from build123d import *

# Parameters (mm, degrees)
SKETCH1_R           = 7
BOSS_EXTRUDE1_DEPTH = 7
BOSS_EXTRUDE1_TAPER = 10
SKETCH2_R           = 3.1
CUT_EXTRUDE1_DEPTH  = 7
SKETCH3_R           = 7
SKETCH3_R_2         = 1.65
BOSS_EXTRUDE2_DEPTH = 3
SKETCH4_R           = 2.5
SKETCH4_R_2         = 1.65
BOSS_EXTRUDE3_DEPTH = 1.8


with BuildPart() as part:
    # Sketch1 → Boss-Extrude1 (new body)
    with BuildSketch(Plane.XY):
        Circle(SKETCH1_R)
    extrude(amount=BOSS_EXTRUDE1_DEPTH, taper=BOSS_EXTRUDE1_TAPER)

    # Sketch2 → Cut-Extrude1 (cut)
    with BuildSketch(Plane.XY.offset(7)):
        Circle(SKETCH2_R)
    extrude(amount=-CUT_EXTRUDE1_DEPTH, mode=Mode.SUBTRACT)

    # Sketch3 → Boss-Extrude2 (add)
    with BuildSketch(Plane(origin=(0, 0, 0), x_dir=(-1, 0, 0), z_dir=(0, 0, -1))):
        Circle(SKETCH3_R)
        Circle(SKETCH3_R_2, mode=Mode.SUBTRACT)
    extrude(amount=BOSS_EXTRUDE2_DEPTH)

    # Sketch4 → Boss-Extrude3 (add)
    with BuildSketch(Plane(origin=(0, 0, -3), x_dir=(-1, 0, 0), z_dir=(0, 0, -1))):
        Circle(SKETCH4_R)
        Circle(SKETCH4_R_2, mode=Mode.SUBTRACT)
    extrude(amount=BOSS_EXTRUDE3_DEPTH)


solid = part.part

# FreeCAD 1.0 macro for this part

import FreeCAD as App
import Part
import Sketcher
from FreeCAD import Vector
Q = App.Units.Quantity

doc = App.newDocument("Part")
params = doc.addObject("Spreadsheet::Sheet", "Params")
for row, (alias, value) in enumerate([
    ("sketch1_diameter", "14 mm"),
    ("pad1_length", "7 mm"),
    ("pad1_taper", "-10 deg"),
    ("sketch2_diameter", "6.2 mm"),
    ("pocket1_length", "7 mm"),
    ("sketch3_diameter", "14 mm"),
    ("sketch3_diameter2", "3.3 mm"),
    ("pad2_length", "3 mm"),
    ("sketch4_diameter", "5 mm"),
    ("sketch4_diameter2", "3.3 mm"),
    ("pad3_length", "1.8 mm"),
], start=1):
    params.set(f"A{row}", alias)
    params.set(f"B{row}", "=" + value)
    params.setAlias(f"B{row}", alias)

body = doc.addObject("PartDesign::Body", "Body")

# Sketch on XY plane
sketch1 = body.newObject("Sketcher::SketchObject", "Sketch")
sketch1.AttachmentSupport = (doc.getObject("XY_Plane"), [""])
sketch1.MapMode = "FlatFace"
sketch1.addGeometry(Part.Circle(Vector(0, 0, 0), Vector(0, 0, 1), 7), False)
sketch1.addConstraint(Sketcher.Constraint("Coincident", 0, 3, -1, 1))
sketch1.addConstraint(Sketcher.Constraint("Diameter", 0, Q("14 mm")))
sketch1.setExpression("Constraints[1]", "Params.sketch1_diameter")
pad1 = body.newObject("PartDesign::Pad", "Pad")
pad1.Profile = sketch1
pad1.setExpression("Length", "Params.pad1_length")
pad1.setExpression("TaperAngle", "Params.pad1_taper")

# Sketch on XY plane
sketch2 = body.newObject("Sketcher::SketchObject", "Sketch001")
sketch2.AttachmentSupport = (doc.getObject("XY_Plane"), [""])
sketch2.MapMode = "FlatFace"
sketch2.AttachmentOffset = App.Placement(Vector(0, 0, 7), App.Rotation())
sketch2.addGeometry(Part.Circle(Vector(0, 0, 0), Vector(0, 0, 1), 3.1), False)
sketch2.addConstraint(Sketcher.Constraint("Coincident", 0, 3, -1, 1))
sketch2.addConstraint(Sketcher.Constraint("Diameter", 0, Q("6.2 mm")))
sketch2.setExpression("Constraints[1]", "Params.sketch2_diameter")
pocket1 = body.newObject("PartDesign::Pocket", "Pocket")
pocket1.Profile = sketch2
pocket1.setExpression("Length", "Params.pocket1_length")

# Sketch on XY plane
sketch3 = body.newObject("Sketcher::SketchObject", "Sketch002")
sketch3.AttachmentSupport = (doc.getObject("XY_Plane"), [""])
sketch3.MapMode = "FlatFace"
sketch3.addGeometry(Part.Circle(Vector(0, 0, 0), Vector(0, 0, 1), 7), False)
sketch3.addGeometry(Part.Circle(Vector(0, 0, 0), Vector(0, 0, 1), 1.65), False)
sketch3.addConstraint(Sketcher.Constraint("Coincident", 0, 3, -1, 1))
sketch3.addConstraint(Sketcher.Constraint("Coincident", 1, 3, -1, 1))
sketch3.addConstraint(Sketcher.Constraint("Diameter", 0, Q("14 mm")))
sketch3.addConstraint(Sketcher.Constraint("Diameter", 1, Q("3.3 mm")))
sketch3.setExpression("Constraints[2]", "Params.sketch3_diameter")
sketch3.setExpression("Constraints[3]", "Params.sketch3_diameter2")
pad2 = body.newObject("PartDesign::Pad", "Pad001")
pad2.Profile = sketch3
pad2.setExpression("Length", "Params.pad2_length")
pad2.Reversed = True

# Sketch on XY plane
sketch4 = body.newObject("Sketcher::SketchObject", "Sketch003")
sketch4.AttachmentSupport = (doc.getObject("XY_Plane"), [""])
sketch4.MapMode = "FlatFace"
sketch4.AttachmentOffset = App.Placement(Vector(0, 0, -3), App.Rotation())
sketch4.addGeometry(Part.Circle(Vector(0, 0, 0), Vector(0, 0, 1), 2.5), False)
sketch4.addGeometry(Part.Circle(Vector(0, 0, 0), Vector(0, 0, 1), 1.65), False)
sketch4.addConstraint(Sketcher.Constraint("Coincident", 0, 3, -1, 1))
sketch4.addConstraint(Sketcher.Constraint("Coincident", 1, 3, -1, 1))
sketch4.addConstraint(Sketcher.Constraint("Diameter", 0, Q("5 mm")))
sketch4.addConstraint(Sketcher.Constraint("Diameter", 1, Q("3.3 mm")))
sketch4.setExpression("Constraints[2]", "Params.sketch4_diameter")
sketch4.setExpression("Constraints[3]", "Params.sketch4_diameter2")
pad3 = body.newObject("PartDesign::Pad", "Pad002")
pad3.Profile = sketch4
pad3.setExpression("Length", "Params.pad3_length")
pad3.Reversed = True

doc.recompute()
